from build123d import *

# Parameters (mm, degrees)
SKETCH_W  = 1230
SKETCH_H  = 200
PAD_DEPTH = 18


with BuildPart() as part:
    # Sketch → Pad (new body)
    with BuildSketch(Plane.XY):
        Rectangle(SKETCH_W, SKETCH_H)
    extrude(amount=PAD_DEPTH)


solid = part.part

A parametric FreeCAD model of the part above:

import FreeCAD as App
import Part
import Sketcher

V = App.Vector
Q = App.Units.Quantity

doc = App.newDocument("Part")
body = doc.addObject("PartDesign::Body", "Body")

# Sketch on XY plane
sketch1 = doc.addObject("Sketcher::SketchObject", "Sketch")
body.addObject(sketch1)
sketch1.AttachmentSupport = (doc.XY_Plane, [""])
sketch1.MapMode = "FlatFace"
sketch1.addGeometry([
    Part.LineSegment(V(-615, 100, 0), V(-615, -100, 0)),
    Part.LineSegment(V(-615, -100, 0), V(615, -100, 0)),
    Part.LineSegment(V(615, -100, 0), V(615, 100, 0)),
    Part.LineSegment(V(615, 100, 0), V(-615, 100, 0)),
], False)
sketch1.addConstraint([
    Sketcher.Constraint("Coincident", 0, 2, 1, 1),
    Sketcher.Constraint("Coincident", 1, 2, 2, 1),
    Sketcher.Constraint("Coincident", 2, 2, 3, 1),
    Sketcher.Constraint("Coincident", 3, 2, 0, 1),
    Sketcher.Constraint("Vertical", 0),
    Sketcher.Constraint("Horizontal", 1),
    Sketcher.Constraint("Vertical", 2),
    Sketcher.Constraint("Horizontal", 3),
    Sketcher.Constraint("Symmetric", 0, 2, 2, 2, -1, 1),
    Sketcher.Constraint("DistanceX", 1, 1, 1, 2, Q("1230 mm")),
    Sketcher.Constraint("DistanceY", 0, 2, 0, 1, Q("200 mm")),
])
pad1 = doc.addObject("PartDesign::Pad", "Pad")
body.addObject(pad1)
pad1.Profile = sketch1
pad1.Length = 18

doc.recompute()
